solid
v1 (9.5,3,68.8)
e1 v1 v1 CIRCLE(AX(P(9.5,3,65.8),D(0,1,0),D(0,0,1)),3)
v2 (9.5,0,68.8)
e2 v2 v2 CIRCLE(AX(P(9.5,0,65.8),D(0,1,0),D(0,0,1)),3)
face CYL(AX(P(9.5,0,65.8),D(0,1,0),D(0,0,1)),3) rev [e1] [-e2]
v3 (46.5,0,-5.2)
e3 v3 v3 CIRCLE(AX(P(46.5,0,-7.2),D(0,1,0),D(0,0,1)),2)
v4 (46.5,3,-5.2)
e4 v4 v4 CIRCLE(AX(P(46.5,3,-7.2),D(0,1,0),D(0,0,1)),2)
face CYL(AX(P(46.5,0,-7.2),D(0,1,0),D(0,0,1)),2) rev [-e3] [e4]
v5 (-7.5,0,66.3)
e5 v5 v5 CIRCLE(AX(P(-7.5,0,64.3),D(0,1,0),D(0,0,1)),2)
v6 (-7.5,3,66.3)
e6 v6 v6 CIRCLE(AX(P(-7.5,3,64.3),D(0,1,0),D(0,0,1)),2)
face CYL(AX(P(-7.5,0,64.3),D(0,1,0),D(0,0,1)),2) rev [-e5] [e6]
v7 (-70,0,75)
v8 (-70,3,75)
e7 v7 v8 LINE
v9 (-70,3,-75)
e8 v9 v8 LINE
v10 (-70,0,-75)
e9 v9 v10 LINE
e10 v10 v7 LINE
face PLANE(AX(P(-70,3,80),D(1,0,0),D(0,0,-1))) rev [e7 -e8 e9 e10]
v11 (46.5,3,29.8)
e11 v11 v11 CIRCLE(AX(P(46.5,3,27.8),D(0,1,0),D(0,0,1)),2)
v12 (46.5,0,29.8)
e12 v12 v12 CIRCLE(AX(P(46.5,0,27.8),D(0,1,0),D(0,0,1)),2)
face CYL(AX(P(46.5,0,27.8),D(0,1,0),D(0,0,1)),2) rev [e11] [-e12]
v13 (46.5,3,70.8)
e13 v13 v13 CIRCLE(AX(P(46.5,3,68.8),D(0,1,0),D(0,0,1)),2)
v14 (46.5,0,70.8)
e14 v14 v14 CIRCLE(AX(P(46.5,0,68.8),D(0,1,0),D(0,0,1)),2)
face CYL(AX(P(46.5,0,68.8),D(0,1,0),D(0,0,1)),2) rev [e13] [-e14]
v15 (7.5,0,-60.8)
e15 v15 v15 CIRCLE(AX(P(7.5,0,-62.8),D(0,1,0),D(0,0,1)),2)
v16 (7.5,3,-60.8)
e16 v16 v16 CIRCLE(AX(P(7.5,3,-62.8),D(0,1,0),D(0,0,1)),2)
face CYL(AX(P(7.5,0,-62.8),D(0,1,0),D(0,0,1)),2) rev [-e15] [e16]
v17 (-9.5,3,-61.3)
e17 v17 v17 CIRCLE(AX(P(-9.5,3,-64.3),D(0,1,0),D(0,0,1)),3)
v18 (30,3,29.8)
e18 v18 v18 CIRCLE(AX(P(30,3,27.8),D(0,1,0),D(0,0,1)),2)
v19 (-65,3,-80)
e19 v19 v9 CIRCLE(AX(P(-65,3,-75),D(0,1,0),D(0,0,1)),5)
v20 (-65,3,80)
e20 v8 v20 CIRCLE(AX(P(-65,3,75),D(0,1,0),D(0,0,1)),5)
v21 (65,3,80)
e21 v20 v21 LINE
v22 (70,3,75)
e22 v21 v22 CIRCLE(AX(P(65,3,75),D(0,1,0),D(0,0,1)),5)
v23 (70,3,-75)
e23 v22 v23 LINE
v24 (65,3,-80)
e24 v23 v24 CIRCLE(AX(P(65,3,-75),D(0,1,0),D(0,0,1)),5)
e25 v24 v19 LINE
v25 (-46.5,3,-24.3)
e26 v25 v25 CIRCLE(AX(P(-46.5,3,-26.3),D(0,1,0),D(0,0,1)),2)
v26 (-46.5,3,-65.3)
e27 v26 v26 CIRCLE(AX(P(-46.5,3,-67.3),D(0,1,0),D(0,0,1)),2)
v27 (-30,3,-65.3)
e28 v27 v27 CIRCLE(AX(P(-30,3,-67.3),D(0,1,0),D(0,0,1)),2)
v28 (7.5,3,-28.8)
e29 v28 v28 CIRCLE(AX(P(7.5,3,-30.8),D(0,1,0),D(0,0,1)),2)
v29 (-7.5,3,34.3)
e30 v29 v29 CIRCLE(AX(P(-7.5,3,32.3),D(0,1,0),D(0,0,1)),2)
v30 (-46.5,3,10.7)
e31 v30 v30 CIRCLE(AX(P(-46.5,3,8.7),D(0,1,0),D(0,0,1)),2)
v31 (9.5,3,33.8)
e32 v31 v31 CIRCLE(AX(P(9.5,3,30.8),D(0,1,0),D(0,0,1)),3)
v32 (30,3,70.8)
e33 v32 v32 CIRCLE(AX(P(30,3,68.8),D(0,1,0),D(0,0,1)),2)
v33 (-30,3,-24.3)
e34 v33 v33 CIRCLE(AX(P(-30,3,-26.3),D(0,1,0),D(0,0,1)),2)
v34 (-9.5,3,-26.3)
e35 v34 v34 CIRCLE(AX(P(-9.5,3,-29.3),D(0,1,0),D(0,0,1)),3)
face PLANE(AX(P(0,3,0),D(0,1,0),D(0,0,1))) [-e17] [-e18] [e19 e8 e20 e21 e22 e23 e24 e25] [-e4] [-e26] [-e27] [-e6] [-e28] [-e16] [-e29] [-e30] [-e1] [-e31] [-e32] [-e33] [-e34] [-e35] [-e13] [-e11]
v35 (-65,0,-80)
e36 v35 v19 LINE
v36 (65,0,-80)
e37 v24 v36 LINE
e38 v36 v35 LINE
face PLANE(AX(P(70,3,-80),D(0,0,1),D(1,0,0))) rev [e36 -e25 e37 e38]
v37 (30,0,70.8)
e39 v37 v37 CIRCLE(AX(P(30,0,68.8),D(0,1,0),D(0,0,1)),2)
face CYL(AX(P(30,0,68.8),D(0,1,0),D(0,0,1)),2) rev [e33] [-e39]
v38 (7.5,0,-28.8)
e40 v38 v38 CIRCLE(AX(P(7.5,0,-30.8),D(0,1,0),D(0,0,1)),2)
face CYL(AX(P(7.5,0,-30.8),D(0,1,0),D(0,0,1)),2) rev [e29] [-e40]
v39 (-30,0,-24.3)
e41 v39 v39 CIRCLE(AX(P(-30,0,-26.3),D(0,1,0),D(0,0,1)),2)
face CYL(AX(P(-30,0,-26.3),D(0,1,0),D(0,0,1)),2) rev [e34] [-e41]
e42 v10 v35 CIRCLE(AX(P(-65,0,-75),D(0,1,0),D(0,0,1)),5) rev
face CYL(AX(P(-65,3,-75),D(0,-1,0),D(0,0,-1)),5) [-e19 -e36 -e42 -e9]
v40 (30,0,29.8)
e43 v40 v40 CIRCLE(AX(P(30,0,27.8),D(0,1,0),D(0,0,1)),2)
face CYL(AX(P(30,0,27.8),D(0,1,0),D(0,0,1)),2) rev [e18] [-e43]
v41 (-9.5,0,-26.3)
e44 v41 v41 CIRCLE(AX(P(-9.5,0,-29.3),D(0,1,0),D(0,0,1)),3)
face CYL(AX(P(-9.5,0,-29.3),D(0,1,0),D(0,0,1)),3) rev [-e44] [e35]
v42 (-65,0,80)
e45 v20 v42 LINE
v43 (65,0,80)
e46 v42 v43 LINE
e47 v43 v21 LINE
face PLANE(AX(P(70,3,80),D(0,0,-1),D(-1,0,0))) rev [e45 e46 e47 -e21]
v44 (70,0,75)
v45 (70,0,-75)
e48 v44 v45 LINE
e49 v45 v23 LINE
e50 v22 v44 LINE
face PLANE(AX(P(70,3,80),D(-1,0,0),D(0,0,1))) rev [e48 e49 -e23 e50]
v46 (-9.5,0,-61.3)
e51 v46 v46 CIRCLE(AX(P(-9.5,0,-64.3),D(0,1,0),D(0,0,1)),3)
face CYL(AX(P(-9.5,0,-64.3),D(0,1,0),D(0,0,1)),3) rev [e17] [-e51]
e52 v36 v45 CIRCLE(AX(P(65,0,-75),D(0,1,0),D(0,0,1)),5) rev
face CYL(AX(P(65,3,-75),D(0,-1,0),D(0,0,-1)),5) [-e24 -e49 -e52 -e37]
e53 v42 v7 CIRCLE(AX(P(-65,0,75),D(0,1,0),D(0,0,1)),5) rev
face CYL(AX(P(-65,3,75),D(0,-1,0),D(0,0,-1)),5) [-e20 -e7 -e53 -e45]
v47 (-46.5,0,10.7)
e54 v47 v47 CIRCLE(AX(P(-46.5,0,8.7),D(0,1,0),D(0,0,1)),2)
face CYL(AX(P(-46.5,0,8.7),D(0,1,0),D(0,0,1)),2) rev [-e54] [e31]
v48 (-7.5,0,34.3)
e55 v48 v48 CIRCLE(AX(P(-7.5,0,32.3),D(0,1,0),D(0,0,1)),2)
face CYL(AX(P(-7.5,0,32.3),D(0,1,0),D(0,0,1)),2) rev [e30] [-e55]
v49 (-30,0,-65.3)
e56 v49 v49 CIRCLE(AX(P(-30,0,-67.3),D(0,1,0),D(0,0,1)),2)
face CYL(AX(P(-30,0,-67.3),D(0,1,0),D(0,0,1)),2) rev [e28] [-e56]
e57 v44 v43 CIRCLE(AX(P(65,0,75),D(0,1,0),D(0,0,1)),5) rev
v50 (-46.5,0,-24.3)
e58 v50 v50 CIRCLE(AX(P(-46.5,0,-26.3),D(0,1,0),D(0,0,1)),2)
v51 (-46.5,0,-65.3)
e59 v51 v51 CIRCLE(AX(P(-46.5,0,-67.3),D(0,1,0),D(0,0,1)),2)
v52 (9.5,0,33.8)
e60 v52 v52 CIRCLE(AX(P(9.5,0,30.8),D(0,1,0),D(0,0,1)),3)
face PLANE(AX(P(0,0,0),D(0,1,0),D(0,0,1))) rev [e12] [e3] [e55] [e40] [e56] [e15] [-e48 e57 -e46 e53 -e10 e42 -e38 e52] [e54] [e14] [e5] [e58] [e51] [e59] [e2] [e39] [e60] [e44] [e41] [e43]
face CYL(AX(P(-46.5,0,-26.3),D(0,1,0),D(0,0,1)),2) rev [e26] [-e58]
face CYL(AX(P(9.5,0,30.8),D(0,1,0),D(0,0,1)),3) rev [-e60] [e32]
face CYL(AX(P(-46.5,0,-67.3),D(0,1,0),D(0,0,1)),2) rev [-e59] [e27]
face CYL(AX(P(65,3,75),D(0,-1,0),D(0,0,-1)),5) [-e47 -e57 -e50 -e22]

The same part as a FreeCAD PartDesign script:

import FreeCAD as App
import Part
import Sketcher
from FreeCAD import Vector
Q = App.Units.Quantity


def edges_at(feature, points):
    """Names of the edges that pass closest to the given points."""
    edges = feature.Shape.Edges
    near = lambda p: min(range(len(edges)), key=lambda i: edges[i].distToShape(Part.Vertex(*p))[0])
    return sorted({f"Edge{near(p) + 1}" for p in points})

doc = App.newDocument("Part")
body = doc.addObject("PartDesign::Body", "Body")

# Sketch on XZ plane
sketch1 = body.newObject("Sketcher::SketchObject", "Sketch")
sketch1.AttachmentSupport = (doc.getObject("XZ_Plane"), [""])
sketch1.MapMode = "FlatFace"
sketch1.addGeometry([
    Part.LineSegment(Vector(-70, -80, 0), Vector(-70, 80, 0)),
    Part.LineSegment(Vector(-70, 80, 0), Vector(70, 80, 0)),
    Part.LineSegment(Vector(70, 80, 0), Vector(70, -80, 0)),
    Part.LineSegment(Vector(70, -80, 0), Vector(-70, -80, 0)),
], False)
sketch1.addConstraint([
    Sketcher.Constraint("Coincident", 0, 2, 1, 1),
    Sketcher.Constraint("Coincident", 1, 2, 2, 1),
    Sketcher.Constraint("Coincident", 2, 2, 3, 1),
    Sketcher.Constraint("Coincident", 3, 2, 0, 1),
    Sketcher.Constraint("Vertical", 0),
    Sketcher.Constraint("Horizontal", 1),
    Sketcher.Constraint("Vertical", 2),
    Sketcher.Constraint("Horizontal", 3),
    Sketcher.Constraint("Symmetric", 0, 2, 2, 2, -1, 1),
    Sketcher.Constraint("DistanceX", 1, 1, 1, 2, Q("140 mm")),
    Sketcher.Constraint("DistanceY", 0, 1, 0, 2, Q("160 mm")),
])
pad1 = body.newObject("PartDesign::Pad", "Pad")
pad1.Profile = sketch1
pad1.Length = 3
pad1.Reversed = True

# Sketch on XZ plane
sketch2 = body.newObject("Sketcher::SketchObject", "Sketch001")
sketch2.AttachmentSupport = (doc.getObject("XZ_Plane"), [""])
sketch2.MapMode = "FlatFace"
sketch2.AttachmentOffset = App.Placement(Vector(0, 0, -3), App.Rotation())
sketch2.addGeometry([
    Part.Circle(Vector(-30, -26.3, 0), Vector(0, 0, 1), 2),  # 0
    Part.Circle(Vector(-30, -67.3, 0), Vector(0, 0, 1), 2),  # 1
    Part.Circle(Vector(7.5, -62.8, 0), Vector(0, 0, 1), 2),  # 2
    Part.Circle(Vector(7.5, -30.8, 0), Vector(0, 0, 1), 2),  # 3
    Part.Circle(Vector(30, 68.8, 0), Vector(0, 0, 1), 2),  # 4
    Part.Circle(Vector(-7.5, 64.3, 0), Vector(0, 0, 1), 2),  # 5
    Part.Circle(Vector(30, 27.8, 0), Vector(0, 0, 1), 2),  # 6
    Part.Circle(Vector(-7.5, 32.3, 0), Vector(0, 0, 1), 2),  # 7
    Part.Circle(Vector(46.5, 27.8, 0), Vector(0, 0, 1), 2),  # 8
    Part.Circle(Vector(46.5, 68.8, 0), Vector(0, 0, 1), 2),  # 9
    Part.Circle(Vector(-46.5, -26.3, 0), Vector(0, 0, 1), 2),  # 10
    Part.Circle(Vector(-46.5, -67.3, 0), Vector(0, 0, 1), 2),  # 11
    Part.Circle(Vector(46.5, -7.2, 0), Vector(0, 0, 1), 2),  # 12
    Part.Circle(Vector(-46.5, 8.7, 0), Vector(0, 0, 1), 2),  # 13
    Part.Circle(Vector(9.5, 65.8, 0), Vector(0, 0, 1), 3),  # 14
    Part.Circle(Vector(9.5, 30.8, 0), Vector(0, 0, 1), 3),  # 15
    Part.Circle(Vector(-9.5, -64.3, 0), Vector(0, 0, 1), 3),  # 16
    Part.Circle(Vector(-9.5, -29.3, 0), Vector(0, 0, 1), 3),  # 17
], False)
sketch2.addConstraint([
    Sketcher.Constraint("Equal", 0, 1),
    Sketcher.Constraint("Equal", 1, 2),
    Sketcher.Constraint("Equal", 2, 3),
    Sketcher.Constraint("Equal", 3, 4),
    Sketcher.Constraint("Equal", 4, 5),
    Sketcher.Constraint("Equal", 5, 6),
    Sketcher.Constraint("Equal", 6, 7),
    Sketcher.Constraint("Equal", 7, 8),
    Sketcher.Constraint("Equal", 8, 9),
    Sketcher.Constraint("Equal", 9, 10),
    Sketcher.Constraint("Equal", 10, 11),
    Sketcher.Constraint("Equal", 11, 12),
    Sketcher.Constraint("Equal", 12, 13),
    Sketcher.Constraint("Equal", 14, 15),
    Sketcher.Constraint("Equal", 15, 16),
    Sketcher.Constraint("Equal", 16, 17),
    Sketcher.Constraint("Horizontal", 6, 3, 8, 3),
    Sketcher.Constraint("Horizontal", 4, 3, 9, 3),
    Sketcher.Constraint("Horizontal", 0, 3, 10, 3),
    Sketcher.Constraint("Horizontal", 1, 3, 11, 3),
    Sketcher.Constraint("Vertical", 0, 3, 1, 3),
    Sketcher.Constraint("Vertical", 2, 3, 3, 3),
    Sketcher.Constraint("Vertical", 4, 3, 6, 3),
    Sketcher.Constraint("Vertical", 5, 3, 7, 3),
    Sketcher.Constraint("Vertical", 8, 3, 9, 3),
    Sketcher.Constraint("Vertical", 10, 3, 11, 3),
    Sketcher.Constraint("Vertical", 9, 3, 12, 3),
    Sketcher.Constraint("Vertical", 11, 3, 13, 3),
    Sketcher.Constraint("Vertical", 14, 3, 15, 3),
    Sketcher.Constraint("Vertical", 16, 3, 17, 3),
    Sketcher.Constraint("Diameter", 0, Q("4 mm")),
    Sketcher.Constraint("Diameter", 14, Q("6 mm")),
    Sketcher.Constraint("DistanceX", 0, 3, -1, 1, Q("30 mm")),
    Sketcher.Constraint("DistanceX", -1, 1, 4, 3, Q("30 mm")),
    Sketcher.Constraint("DistanceY", 1, 3, 0, 3, Q("41 mm")),
    Sketcher.Constraint("DistanceY", 2, 3, 3, 3, Q("32 mm")),
    Sketcher.Constraint("DistanceX", 5, 3, 3, 3, Q("15 mm")),
    Sketcher.Constraint("DistanceY", 6, 3, 4, 3, Q("41 mm")),
    Sketcher.Constraint("DistanceY", 7, 3, 5, 3, Q("32 mm")),
    Sketcher.Constraint("DistanceX", 7, 3, 8, 3, Q("54 mm")),
    Sketcher.Constraint("DistanceX", 10, 3, 3, 3, Q("54 mm")),
    Sketcher.Constraint("DistanceY", 12, 3, 8, 3, Q("35 mm")),
    Sketcher.Constraint("DistanceY", 10, 3, 13, 3, Q("35 mm")),
    Sketcher.Constraint("DistanceX", 5, 3, 14, 3, Q("17 mm")),
    Sketcher.Constraint("DistanceY", 14, 3, 4, 3, Q("3 mm")),
    Sketcher.Constraint("DistanceY", 6, 3, 15, 3, Q("3 mm")),
    Sketcher.Constraint("DistanceX", 16, 3, 2, 3, Q("17 mm")),
    Sketcher.Constraint("DistanceY", 1, 3, 16, 3, Q("3 mm")),
    Sketcher.Constraint("DistanceY", 17, 3, 0, 3, Q("3 mm")),
    Sketcher.Constraint("DistanceY", 0, 3, -1, 1, Q("26.3 mm")),
    Sketcher.Constraint("DistanceX", -1, 1, 2, 3, Q("7.5 mm")),
    Sketcher.Constraint("DistanceY", 2, 3, -1, 1, Q("62.8 mm")),
    Sketcher.Constraint("DistanceY", -1, 1, 4, 3, Q("68.8 mm")),
    Sketcher.Constraint("DistanceY", -1, 1, 5, 3, Q("64.3 mm")),
])
pocket1 = body.newObject("PartDesign::Pocket", "Pocket")
pocket1.Profile = sketch2
pocket1.Type = "ThroughAll"
pocket1.Reversed = True
doc.recompute()

fillet = body.newObject("PartDesign::Fillet", "Fillet")
fillet.Base = (pocket1, edges_at(pocket1, [
    (-70, 1.5, -80),
    (70, 1.5, -80),
    (70, 1.5, 80),
    (-70, 1.5, 80),
]))
fillet.Radius = 5

doc.recompute()
